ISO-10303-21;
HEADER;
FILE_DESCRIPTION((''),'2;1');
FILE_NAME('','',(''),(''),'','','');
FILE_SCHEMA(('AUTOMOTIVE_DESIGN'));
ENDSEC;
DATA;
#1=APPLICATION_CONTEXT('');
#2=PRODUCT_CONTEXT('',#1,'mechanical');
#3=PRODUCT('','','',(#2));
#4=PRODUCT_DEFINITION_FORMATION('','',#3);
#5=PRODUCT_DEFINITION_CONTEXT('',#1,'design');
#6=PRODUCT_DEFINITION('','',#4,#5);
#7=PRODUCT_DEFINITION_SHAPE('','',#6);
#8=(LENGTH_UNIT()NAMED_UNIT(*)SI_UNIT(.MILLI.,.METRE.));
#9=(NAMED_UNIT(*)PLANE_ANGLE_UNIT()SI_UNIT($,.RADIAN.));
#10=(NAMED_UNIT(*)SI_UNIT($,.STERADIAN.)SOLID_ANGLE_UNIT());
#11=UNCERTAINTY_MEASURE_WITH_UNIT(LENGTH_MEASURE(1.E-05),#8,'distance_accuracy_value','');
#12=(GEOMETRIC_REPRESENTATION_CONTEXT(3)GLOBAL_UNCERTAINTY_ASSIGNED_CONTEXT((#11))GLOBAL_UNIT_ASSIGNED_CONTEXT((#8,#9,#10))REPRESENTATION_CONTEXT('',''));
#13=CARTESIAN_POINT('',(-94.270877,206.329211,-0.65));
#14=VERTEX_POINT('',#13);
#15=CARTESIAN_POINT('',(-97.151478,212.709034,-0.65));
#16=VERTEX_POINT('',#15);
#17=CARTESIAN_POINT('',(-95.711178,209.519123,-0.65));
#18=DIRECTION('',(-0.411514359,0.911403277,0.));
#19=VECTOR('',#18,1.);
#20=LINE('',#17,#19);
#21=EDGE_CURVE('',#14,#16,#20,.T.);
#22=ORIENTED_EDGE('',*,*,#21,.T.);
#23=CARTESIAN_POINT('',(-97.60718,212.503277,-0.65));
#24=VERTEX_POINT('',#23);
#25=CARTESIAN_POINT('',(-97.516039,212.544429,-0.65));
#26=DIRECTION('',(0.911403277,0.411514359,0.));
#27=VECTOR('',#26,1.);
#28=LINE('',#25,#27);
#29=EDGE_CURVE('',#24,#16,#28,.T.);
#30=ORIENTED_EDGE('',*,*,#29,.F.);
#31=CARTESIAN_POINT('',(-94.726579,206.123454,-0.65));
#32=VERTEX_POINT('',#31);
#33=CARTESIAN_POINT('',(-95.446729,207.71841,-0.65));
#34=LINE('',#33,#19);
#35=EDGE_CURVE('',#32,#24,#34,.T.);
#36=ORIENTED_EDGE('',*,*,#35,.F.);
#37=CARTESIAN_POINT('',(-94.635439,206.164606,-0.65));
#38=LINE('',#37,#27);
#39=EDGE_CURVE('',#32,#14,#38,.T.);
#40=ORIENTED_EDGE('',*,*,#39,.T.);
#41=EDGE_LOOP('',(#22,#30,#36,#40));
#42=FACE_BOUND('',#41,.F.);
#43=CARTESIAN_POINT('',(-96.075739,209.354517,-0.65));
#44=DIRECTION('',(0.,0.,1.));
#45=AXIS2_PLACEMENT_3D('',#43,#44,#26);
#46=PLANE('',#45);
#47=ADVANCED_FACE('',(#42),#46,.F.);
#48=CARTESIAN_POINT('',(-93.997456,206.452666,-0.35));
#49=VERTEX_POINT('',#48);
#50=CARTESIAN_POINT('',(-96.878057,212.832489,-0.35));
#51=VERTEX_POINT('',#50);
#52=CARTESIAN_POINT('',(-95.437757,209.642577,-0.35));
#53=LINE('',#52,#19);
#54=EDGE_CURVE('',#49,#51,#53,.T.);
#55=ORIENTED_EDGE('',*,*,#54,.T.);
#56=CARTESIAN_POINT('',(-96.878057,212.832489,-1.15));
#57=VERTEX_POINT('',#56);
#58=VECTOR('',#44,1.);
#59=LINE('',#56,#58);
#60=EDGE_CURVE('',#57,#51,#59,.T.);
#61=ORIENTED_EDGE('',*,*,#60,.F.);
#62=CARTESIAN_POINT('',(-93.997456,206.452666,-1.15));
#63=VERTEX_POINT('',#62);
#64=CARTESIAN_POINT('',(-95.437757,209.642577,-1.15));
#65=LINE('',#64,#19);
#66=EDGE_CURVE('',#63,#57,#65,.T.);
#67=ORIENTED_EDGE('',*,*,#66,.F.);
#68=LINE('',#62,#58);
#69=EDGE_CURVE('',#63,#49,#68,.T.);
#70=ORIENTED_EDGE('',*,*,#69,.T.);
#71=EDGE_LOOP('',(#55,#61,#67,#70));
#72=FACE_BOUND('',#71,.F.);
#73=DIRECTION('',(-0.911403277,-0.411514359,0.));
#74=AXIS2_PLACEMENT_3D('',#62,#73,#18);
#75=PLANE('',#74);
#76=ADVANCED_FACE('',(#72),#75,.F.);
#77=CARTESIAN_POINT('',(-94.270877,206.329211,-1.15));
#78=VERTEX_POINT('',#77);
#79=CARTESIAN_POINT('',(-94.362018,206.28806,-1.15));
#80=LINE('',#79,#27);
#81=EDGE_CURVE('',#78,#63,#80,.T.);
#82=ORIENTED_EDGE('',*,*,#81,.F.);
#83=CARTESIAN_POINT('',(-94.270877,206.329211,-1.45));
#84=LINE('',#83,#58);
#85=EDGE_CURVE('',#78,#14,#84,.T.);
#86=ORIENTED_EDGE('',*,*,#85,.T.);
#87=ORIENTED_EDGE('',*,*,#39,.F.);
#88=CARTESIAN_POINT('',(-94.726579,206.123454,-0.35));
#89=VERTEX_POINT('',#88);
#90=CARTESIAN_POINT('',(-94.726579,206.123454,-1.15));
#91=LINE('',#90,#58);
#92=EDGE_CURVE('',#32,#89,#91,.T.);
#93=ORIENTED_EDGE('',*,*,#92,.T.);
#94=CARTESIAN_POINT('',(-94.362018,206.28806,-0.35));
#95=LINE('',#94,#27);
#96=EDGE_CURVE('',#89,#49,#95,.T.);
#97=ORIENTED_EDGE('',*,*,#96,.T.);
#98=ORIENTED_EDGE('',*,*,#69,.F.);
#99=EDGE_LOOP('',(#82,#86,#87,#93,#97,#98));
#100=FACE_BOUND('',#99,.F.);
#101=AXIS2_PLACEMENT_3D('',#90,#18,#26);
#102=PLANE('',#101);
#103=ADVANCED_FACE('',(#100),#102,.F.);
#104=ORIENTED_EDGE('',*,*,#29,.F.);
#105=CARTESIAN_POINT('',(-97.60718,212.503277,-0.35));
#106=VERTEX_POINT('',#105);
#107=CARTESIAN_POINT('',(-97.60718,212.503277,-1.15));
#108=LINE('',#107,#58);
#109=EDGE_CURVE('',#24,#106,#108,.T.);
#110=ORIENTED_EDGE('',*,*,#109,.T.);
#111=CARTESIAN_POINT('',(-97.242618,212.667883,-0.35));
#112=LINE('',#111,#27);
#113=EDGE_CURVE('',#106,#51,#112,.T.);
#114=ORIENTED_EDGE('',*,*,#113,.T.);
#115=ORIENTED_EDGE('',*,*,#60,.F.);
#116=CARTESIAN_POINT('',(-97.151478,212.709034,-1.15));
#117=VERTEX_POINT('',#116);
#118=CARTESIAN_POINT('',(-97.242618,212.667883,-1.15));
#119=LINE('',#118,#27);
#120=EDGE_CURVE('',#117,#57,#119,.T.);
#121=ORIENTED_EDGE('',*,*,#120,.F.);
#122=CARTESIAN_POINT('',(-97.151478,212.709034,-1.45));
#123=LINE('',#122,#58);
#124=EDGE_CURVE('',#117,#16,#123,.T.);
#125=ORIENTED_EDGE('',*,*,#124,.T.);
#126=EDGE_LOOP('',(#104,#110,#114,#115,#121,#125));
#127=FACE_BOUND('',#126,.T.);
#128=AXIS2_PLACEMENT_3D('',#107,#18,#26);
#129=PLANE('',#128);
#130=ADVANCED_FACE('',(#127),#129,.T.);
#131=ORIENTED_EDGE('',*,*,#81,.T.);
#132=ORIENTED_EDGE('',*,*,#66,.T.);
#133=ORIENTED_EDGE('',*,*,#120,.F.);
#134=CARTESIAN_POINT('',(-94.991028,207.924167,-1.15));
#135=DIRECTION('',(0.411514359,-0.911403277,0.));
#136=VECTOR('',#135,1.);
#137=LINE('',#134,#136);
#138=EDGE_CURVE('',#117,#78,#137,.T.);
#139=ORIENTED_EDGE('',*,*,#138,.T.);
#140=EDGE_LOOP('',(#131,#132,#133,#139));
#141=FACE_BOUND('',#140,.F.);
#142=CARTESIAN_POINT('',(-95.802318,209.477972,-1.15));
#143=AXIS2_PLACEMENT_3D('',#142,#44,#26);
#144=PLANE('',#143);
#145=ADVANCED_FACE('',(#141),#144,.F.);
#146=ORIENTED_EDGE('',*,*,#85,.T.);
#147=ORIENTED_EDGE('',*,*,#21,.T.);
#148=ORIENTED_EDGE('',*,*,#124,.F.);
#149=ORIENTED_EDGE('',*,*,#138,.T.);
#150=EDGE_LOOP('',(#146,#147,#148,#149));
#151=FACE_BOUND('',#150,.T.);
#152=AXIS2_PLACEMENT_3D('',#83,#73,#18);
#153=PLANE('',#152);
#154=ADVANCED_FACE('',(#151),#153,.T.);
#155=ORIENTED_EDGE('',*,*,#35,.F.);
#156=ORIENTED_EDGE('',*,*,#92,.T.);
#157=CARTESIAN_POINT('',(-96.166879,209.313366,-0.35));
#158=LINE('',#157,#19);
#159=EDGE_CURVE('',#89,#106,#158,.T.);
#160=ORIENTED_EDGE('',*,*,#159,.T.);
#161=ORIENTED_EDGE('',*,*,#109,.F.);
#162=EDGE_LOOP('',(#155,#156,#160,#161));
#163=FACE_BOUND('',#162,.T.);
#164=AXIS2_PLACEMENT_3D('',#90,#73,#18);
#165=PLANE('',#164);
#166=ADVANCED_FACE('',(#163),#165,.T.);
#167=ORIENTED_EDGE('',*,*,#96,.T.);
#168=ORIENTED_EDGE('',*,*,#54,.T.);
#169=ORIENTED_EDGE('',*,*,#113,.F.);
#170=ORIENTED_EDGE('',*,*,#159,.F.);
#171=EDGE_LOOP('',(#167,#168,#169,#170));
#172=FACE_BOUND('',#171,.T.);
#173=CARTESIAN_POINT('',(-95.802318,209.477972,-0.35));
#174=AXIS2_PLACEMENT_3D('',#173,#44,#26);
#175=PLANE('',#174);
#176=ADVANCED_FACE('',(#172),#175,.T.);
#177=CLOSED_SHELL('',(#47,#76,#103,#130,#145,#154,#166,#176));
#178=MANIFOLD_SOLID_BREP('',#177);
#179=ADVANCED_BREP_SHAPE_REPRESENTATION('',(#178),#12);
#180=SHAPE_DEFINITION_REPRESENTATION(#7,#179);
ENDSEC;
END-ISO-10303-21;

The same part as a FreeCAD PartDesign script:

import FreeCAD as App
import Part
import Sketcher


def add_polygon(sketch, points):
    """Adds a closed chain of lines whose ends are joined by coincident constraints."""
    first, n = sketch.GeometryCount, len(points)
    for a, b in zip(points, points[1:] + points[:1]):
        sketch.addGeometry(Part.LineSegment(App.Vector(*a, 0), App.Vector(*b, 0)), False)
    for i in range(n):
        sketch.addConstraint(Sketcher.Constraint("Coincident", first + i, 2, first + (i + 1) % n, 1))

doc = App.newDocument("Part")
body = doc.addObject("PartDesign::Body", "Body")

sketch1 = doc.addObject("Sketcher::SketchObject", "Sketch")
body.addObject(sketch1)
sketch1.AttachmentSupport = (doc.XY_Plane, [""])
sketch1.MapMode = "FlatFace"
add_polygon(sketch1, [(0, 7), (0, 0), (0.8, 0), (0.8, 7)])
sketch1.addConstraint([
    Sketcher.Constraint("Vertical", 0),
    Sketcher.Constraint("Horizontal", 1),
    Sketcher.Constraint("Vertical", 2),
    Sketcher.Constraint("Horizontal", 3),
    Sketcher.Constraint("Coincident", 0, 2, -1, 1),
    Sketcher.Constraint("DistanceY", 0, 2, 0, 1, 7.0),
    Sketcher.Constraint("DistanceX", 1, 1, 1, 2, 0.8),
])
pad1 = doc.addObject("PartDesign::Pad", "Pad")
body.addObject(pad1)
pad1.Profile = sketch1
pad1.Length = 0.8
body2 = doc.addObject("PartDesign::Body", "Body001")

sketch2 = doc.addObject("Sketcher::SketchObject", "Sketch001")
body2.addObject(sketch2)
sketch2.AttachmentSupport = (doc.getObject("XY_Plane001"), [""])
sketch2.MapMode = "FlatFace"
sketch2.AttachmentOffset = App.Placement(App.Vector(0, 0, 0.3), App.Rotation())
add_polygon(sketch2, [(0.3, 7), (0.3, 0), (1.1, 0), (1.1, 7)])
sketch2.addConstraint([
    Sketcher.Constraint("Vertical", 0),
    Sketcher.Constraint("Horizontal", 1),
    Sketcher.Constraint("Vertical", 2),
    Sketcher.Constraint("Horizontal", 3),
    Sketcher.Constraint("PointOnObject", 0, 2, -1),
    Sketcher.Constraint("DistanceY", 0, 2, 0, 1, 7.0),
    Sketcher.Constraint("DistanceX", 1, 1, 1, 2, 0.8),
    Sketcher.Constraint("DistanceX", -1, 1, 0, 2, 0.3),
])
pad2 = doc.addObject("PartDesign::Pad", "Pad001")
body2.addObject(pad2)
pad2.Profile = sketch2
pad2.Length = 0.8
doc.recompute()

boolean = doc.addObject("PartDesign::Boolean", "Boolean")
body2.addObject(boolean)
boolean.Type = "Cut"
boolean.addObjects([body])
body3 = doc.addObject("PartDesign::Body", "Body002")
doc.recompute()

body2.Placement = App.Placement(App.Vector(-95, 206, -1.45), App.Rotation(App.Vector(0, 0, 1), 24.3))
boolean2 = doc.addObject("PartDesign::Boolean", "Boolean001")
body3.addObject(boolean2)
boolean2.Type = "Fuse"
boolean2.addObjects([body2])

doc.recompute()
